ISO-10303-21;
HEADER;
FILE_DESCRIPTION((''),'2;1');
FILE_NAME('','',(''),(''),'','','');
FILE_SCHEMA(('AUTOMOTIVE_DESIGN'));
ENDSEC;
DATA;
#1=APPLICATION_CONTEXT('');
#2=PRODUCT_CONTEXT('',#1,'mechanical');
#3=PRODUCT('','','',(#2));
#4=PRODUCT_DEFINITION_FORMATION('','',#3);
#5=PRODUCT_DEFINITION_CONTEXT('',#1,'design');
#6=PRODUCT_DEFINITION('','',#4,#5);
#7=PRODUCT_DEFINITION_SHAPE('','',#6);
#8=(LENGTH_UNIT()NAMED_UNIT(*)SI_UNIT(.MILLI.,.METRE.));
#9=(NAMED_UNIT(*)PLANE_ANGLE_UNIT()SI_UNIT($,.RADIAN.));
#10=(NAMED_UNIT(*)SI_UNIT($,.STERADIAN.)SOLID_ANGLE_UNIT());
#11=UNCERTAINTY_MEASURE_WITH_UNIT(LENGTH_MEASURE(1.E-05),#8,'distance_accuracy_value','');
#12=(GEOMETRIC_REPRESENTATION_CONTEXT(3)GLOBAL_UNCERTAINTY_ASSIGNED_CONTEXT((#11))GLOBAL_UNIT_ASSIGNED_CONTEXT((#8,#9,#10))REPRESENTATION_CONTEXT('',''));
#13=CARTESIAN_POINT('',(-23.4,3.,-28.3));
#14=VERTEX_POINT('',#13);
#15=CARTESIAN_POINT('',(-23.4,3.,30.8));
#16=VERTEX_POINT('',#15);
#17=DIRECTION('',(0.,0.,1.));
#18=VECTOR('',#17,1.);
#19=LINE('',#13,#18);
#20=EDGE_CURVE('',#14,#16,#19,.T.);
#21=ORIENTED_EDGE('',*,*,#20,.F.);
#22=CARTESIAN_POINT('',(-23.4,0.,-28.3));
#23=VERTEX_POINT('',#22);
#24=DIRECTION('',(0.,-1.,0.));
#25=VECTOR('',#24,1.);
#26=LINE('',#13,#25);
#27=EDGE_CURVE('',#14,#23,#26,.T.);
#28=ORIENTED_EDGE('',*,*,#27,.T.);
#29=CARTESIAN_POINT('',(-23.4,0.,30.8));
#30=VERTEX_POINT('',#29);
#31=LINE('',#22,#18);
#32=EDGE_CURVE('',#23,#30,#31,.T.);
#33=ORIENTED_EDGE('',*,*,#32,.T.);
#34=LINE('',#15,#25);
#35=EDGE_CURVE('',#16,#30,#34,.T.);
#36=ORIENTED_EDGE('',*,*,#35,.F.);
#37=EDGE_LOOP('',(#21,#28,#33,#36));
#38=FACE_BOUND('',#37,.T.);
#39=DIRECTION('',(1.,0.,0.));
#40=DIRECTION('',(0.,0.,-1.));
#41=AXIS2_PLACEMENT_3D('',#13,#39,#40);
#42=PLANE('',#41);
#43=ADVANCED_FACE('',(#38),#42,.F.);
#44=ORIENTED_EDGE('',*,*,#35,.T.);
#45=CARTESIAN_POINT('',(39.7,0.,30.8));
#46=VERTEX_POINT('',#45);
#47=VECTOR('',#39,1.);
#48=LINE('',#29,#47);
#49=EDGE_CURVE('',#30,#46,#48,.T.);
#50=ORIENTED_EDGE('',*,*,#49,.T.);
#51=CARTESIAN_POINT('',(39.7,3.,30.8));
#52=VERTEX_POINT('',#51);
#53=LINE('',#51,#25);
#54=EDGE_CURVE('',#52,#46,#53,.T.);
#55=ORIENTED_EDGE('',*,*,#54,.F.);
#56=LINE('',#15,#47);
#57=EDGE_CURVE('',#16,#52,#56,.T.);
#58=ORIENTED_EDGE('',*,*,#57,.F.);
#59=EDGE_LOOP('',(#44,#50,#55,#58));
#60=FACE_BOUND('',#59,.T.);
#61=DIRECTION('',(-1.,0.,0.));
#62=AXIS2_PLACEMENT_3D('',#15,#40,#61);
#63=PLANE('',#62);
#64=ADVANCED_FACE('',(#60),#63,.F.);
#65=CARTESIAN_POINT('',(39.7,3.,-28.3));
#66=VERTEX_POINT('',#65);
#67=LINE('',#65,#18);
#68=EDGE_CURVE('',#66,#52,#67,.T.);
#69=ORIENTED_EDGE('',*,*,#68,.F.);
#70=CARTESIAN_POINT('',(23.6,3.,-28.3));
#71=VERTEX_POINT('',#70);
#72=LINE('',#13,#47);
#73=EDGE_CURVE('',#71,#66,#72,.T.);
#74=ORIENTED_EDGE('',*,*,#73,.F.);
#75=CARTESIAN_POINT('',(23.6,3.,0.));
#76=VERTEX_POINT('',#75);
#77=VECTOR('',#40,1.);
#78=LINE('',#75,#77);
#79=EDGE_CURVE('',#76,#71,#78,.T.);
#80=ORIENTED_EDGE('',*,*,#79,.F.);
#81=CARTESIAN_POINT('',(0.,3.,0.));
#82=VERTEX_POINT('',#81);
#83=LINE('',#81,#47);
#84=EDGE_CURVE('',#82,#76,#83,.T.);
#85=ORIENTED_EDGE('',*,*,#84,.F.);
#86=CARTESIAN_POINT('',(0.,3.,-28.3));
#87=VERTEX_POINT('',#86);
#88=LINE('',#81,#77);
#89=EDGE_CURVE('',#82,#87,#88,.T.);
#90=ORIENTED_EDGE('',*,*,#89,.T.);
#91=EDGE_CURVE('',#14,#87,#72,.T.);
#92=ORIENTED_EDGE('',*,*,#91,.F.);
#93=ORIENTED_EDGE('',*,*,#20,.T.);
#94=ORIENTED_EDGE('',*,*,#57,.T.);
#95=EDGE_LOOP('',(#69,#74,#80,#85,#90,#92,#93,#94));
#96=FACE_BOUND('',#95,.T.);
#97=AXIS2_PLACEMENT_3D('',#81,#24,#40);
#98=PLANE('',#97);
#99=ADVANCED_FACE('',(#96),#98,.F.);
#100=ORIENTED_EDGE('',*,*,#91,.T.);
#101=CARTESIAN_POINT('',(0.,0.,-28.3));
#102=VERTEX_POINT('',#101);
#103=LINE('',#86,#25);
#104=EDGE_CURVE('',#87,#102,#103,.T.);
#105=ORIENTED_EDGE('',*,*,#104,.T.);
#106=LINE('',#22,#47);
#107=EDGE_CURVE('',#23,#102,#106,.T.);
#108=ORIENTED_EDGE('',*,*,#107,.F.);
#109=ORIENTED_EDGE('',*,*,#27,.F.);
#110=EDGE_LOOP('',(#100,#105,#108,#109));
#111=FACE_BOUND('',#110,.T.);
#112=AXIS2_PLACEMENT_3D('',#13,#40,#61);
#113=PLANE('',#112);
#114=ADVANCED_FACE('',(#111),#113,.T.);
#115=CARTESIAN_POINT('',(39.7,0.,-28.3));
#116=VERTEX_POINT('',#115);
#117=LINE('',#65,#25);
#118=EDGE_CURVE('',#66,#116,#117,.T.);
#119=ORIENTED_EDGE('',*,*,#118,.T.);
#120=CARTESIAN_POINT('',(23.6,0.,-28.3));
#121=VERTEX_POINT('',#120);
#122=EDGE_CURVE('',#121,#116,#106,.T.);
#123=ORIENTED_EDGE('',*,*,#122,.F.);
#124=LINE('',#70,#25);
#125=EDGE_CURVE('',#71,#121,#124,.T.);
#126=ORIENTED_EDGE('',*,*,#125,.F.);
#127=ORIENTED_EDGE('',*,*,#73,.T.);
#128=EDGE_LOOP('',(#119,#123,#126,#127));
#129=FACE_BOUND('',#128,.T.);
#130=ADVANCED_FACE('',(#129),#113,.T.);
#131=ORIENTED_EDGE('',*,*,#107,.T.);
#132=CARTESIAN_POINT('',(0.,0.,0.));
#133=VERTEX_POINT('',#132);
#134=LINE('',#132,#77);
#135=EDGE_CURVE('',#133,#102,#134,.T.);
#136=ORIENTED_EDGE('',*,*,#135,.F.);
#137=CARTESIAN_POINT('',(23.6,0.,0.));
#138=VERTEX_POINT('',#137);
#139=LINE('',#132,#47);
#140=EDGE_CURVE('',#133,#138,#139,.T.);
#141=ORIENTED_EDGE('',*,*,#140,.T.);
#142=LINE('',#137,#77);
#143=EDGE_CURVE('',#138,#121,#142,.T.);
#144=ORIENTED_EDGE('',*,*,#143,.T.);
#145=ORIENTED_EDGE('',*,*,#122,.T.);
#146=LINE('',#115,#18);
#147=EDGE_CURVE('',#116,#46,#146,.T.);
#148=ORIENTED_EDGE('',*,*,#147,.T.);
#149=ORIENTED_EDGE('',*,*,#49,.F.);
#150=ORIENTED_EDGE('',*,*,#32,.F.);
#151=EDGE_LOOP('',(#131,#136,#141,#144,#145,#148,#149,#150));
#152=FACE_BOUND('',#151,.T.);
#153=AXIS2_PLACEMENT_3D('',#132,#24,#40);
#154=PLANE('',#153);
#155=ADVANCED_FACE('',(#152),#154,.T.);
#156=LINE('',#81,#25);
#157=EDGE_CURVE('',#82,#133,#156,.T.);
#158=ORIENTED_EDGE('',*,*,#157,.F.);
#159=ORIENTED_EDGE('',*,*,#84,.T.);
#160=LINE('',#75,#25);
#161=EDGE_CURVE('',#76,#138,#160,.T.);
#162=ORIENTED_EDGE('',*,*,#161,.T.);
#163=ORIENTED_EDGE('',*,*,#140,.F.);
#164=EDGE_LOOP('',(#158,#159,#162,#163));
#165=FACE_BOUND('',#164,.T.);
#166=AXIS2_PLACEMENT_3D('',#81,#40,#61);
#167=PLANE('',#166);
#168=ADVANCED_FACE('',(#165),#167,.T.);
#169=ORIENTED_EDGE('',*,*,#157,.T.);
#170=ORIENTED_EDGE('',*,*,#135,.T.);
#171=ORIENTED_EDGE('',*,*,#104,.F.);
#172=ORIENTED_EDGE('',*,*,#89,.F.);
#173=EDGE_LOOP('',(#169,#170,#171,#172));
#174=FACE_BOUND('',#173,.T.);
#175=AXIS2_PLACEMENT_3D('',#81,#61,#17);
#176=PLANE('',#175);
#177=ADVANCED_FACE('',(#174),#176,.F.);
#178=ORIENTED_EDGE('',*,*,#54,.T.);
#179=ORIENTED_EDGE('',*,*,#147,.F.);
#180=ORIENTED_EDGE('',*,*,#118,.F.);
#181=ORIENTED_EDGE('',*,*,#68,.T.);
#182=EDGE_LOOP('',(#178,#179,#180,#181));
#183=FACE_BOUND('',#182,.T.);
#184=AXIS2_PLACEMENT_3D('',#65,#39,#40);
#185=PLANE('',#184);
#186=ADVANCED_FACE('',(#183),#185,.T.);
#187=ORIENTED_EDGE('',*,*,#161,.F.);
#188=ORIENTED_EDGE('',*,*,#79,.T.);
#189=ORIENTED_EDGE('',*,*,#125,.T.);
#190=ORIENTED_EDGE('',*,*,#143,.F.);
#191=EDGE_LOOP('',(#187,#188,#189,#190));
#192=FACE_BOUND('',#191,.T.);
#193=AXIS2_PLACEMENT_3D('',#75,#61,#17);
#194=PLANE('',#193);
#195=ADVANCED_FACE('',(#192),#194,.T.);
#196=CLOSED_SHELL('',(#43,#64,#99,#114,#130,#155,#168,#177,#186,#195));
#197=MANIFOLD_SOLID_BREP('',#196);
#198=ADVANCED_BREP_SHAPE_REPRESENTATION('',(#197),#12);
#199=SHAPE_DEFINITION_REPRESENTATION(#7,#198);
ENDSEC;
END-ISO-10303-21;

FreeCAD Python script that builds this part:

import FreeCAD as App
import Part
import Sketcher
from FreeCAD import Vector


def add_polygon(sketch, points):
    """Adds a closed chain of lines whose ends are joined by coincident constraints."""
    first, n = sketch.GeometryCount, len(points)
    for a, b in zip(points, points[1:] + points[:1]):
        sketch.addGeometry(Part.LineSegment(App.Vector(*a, 0), App.Vector(*b, 0)), False)
    for i in range(n):
        sketch.addConstraint(Sketcher.Constraint("Coincident", first + i, 2, first + (i + 1) % n, 1))

doc = App.newDocument("Part")
params = doc.addObject("Spreadsheet::Sheet", "Params")
for row, (alias, value) in enumerate([
    ("sketch1_width", "23.6 mm"),
    ("sketch1_width2", "23.4 mm"),
    ("sketch1_width3", "63.1 mm"),
    ("sketch1_height", "28.3 mm"),
    ("sketch1_height2", "59.1 mm"),
    ("pad1_length", "3 mm"),
], start=1):
    params.set(f"A{row}", alias)
    params.set(f"B{row}", "=" + value)
    params.setAlias(f"B{row}", alias)

body = doc.addObject("PartDesign::Body", "Body")

# Sketch on XZ plane
sketch1 = body.newObject("Sketcher::SketchObject", "Sketch")
sketch1.AttachmentSupport = (doc.getObject("XZ_Plane"), [""])
sketch1.MapMode = "FlatFace"
add_polygon(sketch1, [(24, 0), (0, 0), (0, -28), (-23, -28), (-23, 31), (40, 31), (40, -28), (24, -28)])  # lines 0-7
sketch1.addConstraint(Sketcher.Constraint("Horizontal", 0))
sketch1.addConstraint(Sketcher.Constraint("Vertical", 1))
sketch1.addConstraint(Sketcher.Constraint("Horizontal", 2))
sketch1.addConstraint(Sketcher.Constraint("Vertical", 3))
sketch1.addConstraint(Sketcher.Constraint("Horizontal", 4))
sketch1.addConstraint(Sketcher.Constraint("Vertical", 5))
sketch1.addConstraint(Sketcher.Constraint("Horizontal", 6))
sketch1.addConstraint(Sketcher.Constraint("Vertical", 7))
sketch1.addConstraint(Sketcher.Constraint("Coincident", 0, 2, -1, 1))
sketch1.addConstraint(Sketcher.Constraint("Horizontal", 2, 2, 5, 2))
sketch1.addConstraint(Sketcher.Constraint("DistanceX", 0, 2, 0, 1, 23.6))
sketch1.addConstraint(Sketcher.Constraint("DistanceX", 2, 2, 2, 1, 23.4))
sketch1.addConstraint(Sketcher.Constraint("DistanceX", 4, 1, 4, 2, 63.1))
sketch1.addConstraint(Sketcher.Constraint("DistanceY", 1, 2, 1, 1, 28.3))
sketch1.addConstraint(Sketcher.Constraint("DistanceY", 3, 1, 3, 2, 59.1))
sketch1.setExpression("Constraints[18]", "Params.sketch1_width")
sketch1.setExpression("Constraints[19]", "Params.sketch1_width2")
sketch1.setExpression("Constraints[20]", "Params.sketch1_width3")
sketch1.setExpression("Constraints[21]", "Params.sketch1_height")
sketch1.setExpression("Constraints[22]", "Params.sketch1_height2")
pad1 = body.newObject("PartDesign::Pad", "Pad")
pad1.Profile = sketch1
pad1.setExpression("Length", "Params.pad1_length")
pad1.Reversed = True

doc.recompute()
